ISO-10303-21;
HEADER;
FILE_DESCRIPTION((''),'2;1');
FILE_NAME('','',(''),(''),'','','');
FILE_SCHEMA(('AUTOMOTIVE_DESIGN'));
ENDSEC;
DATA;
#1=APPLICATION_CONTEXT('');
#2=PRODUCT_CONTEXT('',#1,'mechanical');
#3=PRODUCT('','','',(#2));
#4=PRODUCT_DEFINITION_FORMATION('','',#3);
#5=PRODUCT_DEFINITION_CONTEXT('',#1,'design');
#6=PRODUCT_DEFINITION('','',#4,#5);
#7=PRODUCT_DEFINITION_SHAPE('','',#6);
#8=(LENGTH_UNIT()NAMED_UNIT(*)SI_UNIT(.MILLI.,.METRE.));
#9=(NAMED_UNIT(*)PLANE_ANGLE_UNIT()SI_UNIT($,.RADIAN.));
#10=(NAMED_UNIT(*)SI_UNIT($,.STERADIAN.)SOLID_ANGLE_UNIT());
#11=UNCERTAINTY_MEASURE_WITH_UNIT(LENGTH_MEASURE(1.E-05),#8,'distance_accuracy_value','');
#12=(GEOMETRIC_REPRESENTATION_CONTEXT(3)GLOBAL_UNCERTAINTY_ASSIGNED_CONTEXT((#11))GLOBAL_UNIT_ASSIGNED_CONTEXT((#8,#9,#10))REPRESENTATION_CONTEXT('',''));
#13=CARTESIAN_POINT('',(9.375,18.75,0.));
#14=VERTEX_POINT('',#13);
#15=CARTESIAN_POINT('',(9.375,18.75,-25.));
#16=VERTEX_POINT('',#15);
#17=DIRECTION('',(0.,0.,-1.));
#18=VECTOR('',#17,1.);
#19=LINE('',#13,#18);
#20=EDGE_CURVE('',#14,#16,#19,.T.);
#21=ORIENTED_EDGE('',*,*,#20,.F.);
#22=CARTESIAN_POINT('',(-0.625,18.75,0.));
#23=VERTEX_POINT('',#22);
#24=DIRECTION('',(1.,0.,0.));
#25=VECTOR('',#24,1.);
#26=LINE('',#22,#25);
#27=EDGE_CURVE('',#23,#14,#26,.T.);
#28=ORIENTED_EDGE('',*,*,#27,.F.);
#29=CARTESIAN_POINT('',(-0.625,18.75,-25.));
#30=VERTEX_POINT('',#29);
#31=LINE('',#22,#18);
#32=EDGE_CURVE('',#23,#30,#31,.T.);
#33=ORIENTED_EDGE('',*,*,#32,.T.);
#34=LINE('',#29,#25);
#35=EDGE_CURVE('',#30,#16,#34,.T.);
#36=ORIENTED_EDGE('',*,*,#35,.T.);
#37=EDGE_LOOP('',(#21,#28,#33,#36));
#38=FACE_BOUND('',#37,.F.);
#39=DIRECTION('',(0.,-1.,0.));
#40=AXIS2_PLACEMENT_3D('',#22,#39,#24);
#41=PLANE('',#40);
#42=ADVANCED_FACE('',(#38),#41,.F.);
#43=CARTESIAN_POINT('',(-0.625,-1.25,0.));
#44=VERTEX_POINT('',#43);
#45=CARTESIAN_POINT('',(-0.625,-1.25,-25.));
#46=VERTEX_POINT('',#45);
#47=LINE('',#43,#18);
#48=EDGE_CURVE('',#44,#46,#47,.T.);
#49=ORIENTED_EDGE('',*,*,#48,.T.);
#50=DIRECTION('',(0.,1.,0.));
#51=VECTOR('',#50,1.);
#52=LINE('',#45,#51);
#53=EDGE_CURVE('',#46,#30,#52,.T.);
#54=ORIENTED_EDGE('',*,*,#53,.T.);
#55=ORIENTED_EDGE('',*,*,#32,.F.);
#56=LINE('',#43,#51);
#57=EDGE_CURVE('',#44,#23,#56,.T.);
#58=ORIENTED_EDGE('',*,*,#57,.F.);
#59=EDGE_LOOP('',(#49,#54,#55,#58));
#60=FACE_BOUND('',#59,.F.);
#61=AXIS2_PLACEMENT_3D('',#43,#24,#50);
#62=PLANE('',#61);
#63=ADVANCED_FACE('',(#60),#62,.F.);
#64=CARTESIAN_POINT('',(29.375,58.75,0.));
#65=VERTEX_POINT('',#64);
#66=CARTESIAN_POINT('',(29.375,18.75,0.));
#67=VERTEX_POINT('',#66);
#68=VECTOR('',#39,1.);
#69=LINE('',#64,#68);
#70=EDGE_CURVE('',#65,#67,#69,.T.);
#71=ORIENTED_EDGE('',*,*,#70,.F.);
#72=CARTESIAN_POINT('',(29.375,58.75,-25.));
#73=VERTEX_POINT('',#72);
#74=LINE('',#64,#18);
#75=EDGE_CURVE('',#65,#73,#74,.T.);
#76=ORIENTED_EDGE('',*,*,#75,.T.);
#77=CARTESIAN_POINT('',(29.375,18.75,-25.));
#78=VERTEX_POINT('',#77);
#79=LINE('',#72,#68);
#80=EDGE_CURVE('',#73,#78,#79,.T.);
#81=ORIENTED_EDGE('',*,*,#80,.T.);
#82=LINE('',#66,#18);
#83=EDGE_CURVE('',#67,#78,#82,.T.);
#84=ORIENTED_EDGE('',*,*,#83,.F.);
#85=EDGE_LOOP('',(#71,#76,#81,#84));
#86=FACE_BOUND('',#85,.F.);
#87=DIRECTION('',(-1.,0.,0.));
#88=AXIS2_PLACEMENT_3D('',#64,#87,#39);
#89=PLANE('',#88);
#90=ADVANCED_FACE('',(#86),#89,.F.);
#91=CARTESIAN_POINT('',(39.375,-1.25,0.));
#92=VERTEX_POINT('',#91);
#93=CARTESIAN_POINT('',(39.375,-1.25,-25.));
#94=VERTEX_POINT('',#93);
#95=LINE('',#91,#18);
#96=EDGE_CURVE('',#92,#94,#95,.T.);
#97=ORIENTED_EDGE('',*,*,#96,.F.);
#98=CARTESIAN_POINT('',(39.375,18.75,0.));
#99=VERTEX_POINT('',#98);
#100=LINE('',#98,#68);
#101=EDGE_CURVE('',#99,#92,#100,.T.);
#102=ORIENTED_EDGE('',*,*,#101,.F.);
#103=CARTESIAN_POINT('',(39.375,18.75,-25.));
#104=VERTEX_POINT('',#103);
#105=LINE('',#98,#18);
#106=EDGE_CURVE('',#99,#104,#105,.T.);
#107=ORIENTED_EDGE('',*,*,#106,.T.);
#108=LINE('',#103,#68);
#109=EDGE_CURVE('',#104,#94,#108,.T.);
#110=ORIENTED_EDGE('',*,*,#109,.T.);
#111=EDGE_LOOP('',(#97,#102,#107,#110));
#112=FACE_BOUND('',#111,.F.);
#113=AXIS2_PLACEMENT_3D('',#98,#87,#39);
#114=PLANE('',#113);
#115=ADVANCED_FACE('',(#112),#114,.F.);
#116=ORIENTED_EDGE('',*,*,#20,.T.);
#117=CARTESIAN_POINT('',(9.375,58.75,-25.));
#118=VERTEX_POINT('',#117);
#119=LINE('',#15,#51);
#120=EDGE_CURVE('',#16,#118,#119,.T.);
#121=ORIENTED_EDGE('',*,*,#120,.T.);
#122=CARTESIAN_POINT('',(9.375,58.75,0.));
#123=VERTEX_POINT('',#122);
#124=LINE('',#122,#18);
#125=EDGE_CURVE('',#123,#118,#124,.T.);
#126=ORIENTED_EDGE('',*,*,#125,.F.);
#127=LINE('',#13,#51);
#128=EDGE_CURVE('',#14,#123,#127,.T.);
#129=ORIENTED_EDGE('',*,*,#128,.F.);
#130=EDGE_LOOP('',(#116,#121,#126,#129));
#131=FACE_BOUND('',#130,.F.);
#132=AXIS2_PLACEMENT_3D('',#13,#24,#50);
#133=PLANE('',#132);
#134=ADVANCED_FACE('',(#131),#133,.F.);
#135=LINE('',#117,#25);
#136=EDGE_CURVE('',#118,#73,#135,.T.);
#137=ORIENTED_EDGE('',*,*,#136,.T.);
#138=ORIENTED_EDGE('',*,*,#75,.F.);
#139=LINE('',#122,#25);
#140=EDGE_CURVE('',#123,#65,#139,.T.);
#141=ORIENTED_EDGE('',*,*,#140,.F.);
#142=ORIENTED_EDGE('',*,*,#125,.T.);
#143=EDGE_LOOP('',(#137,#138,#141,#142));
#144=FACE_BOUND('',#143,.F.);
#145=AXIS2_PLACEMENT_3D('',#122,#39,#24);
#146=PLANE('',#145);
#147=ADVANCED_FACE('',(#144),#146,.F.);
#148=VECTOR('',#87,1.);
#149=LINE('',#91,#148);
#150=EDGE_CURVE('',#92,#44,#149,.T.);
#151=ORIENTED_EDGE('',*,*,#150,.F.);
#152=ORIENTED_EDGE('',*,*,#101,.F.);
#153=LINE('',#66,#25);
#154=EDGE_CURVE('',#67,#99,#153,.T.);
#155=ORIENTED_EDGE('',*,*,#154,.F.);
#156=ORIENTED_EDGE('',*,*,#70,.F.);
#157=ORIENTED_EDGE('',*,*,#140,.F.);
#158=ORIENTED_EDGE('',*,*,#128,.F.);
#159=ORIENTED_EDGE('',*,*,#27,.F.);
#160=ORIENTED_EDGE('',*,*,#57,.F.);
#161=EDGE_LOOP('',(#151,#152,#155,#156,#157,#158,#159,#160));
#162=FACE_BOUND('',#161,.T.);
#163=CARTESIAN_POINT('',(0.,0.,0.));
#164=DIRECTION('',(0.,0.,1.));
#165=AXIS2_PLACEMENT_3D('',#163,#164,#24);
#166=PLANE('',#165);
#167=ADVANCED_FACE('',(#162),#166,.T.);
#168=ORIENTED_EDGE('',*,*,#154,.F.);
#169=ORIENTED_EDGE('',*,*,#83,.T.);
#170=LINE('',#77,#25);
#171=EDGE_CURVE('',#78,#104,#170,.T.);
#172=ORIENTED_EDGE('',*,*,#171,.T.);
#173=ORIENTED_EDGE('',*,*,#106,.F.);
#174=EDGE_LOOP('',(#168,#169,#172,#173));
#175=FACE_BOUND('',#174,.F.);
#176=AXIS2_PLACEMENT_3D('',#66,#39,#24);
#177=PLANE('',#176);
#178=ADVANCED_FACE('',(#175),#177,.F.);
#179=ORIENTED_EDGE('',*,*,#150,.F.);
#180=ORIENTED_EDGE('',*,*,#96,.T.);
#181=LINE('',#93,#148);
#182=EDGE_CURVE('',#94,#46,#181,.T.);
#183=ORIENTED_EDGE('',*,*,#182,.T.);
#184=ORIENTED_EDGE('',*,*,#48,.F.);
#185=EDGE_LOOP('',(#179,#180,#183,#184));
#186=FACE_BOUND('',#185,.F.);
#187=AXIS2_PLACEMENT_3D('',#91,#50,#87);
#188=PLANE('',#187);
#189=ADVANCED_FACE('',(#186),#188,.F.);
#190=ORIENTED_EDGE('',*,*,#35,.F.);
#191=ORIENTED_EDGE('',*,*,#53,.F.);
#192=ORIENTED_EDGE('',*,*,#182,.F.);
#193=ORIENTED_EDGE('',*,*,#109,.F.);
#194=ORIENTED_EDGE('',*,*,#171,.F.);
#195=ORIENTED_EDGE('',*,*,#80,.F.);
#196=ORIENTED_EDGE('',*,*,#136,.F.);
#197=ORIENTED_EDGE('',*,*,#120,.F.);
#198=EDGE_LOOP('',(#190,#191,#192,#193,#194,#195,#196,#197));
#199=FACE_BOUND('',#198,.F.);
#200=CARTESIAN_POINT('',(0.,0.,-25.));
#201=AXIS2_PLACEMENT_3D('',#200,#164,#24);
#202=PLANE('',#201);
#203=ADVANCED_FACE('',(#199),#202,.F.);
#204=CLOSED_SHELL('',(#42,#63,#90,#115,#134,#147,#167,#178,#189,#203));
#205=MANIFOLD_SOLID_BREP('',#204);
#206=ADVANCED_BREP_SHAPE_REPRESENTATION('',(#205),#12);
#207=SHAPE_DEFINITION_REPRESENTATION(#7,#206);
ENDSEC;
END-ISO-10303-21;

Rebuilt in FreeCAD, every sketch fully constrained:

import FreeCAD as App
import Part
import Sketcher
Q = App.Units.Quantity


def add_polygon(sketch, points):
    """Adds a closed chain of lines whose ends are joined by coincident constraints."""
    first, n = sketch.GeometryCount, len(points)
    for a, b in zip(points, points[1:] + points[:1]):
        sketch.addGeometry(Part.LineSegment(App.Vector(*a, 0), App.Vector(*b, 0)), False)
    for i in range(n):
        sketch.addConstraint(Sketcher.Constraint("Coincident", first + i, 2, first + (i + 1) % n, 1))

doc = App.newDocument("Part")
body = doc.addObject("PartDesign::Body", "Body")

# Sketch on XY plane
sketch1 = body.newObject("Sketcher::SketchObject", "Sketch")
sketch1.AttachmentSupport = (doc.getObject("XY_Plane"), [""])
sketch1.MapMode = "FlatFace"
add_polygon(sketch1, [(-0.625, 18.75), (-0.625, -1.25), (39.375, -1.25), (39.375, 18.75), (29.375, 18.75), (29.375, 58.75), (9.375, 58.75), (9.375, 18.75)])  # lines 0-7
sketch1.addConstraint([
    Sketcher.Constraint("Vertical", 0),
    Sketcher.Constraint("Horizontal", 1),
    Sketcher.Constraint("Vertical", 2),
    Sketcher.Constraint("Horizontal", 3),
    Sketcher.Constraint("Vertical", 4),
    Sketcher.Constraint("Horizontal", 5),
    Sketcher.Constraint("Vertical", 6),
    Sketcher.Constraint("Horizontal", 7),
    Sketcher.Constraint("Horizontal", 3, 2, 6, 2),
    Sketcher.Constraint("Equal", 3, 7),
    Sketcher.Constraint("Equal", 5, 0),
    Sketcher.Constraint("Equal", 1, 4),
    Sketcher.Constraint("DistanceX", 1, 1, 1, 2, Q("40 mm")),
    Sketcher.Constraint("DistanceX", 3, 2, 3, 1, Q("10 mm")),
    Sketcher.Constraint("DistanceY", 0, 2, -1, 1, Q("1.25 mm")),
    Sketcher.Constraint("DistanceX", 0, 2, -1, 1, Q("0.625 mm")),
])
pad1 = body.newObject("PartDesign::Pad", "Pad")
pad1.Profile = sketch1
pad1.Length = 25
pad1.Reversed = True

doc.recompute()
